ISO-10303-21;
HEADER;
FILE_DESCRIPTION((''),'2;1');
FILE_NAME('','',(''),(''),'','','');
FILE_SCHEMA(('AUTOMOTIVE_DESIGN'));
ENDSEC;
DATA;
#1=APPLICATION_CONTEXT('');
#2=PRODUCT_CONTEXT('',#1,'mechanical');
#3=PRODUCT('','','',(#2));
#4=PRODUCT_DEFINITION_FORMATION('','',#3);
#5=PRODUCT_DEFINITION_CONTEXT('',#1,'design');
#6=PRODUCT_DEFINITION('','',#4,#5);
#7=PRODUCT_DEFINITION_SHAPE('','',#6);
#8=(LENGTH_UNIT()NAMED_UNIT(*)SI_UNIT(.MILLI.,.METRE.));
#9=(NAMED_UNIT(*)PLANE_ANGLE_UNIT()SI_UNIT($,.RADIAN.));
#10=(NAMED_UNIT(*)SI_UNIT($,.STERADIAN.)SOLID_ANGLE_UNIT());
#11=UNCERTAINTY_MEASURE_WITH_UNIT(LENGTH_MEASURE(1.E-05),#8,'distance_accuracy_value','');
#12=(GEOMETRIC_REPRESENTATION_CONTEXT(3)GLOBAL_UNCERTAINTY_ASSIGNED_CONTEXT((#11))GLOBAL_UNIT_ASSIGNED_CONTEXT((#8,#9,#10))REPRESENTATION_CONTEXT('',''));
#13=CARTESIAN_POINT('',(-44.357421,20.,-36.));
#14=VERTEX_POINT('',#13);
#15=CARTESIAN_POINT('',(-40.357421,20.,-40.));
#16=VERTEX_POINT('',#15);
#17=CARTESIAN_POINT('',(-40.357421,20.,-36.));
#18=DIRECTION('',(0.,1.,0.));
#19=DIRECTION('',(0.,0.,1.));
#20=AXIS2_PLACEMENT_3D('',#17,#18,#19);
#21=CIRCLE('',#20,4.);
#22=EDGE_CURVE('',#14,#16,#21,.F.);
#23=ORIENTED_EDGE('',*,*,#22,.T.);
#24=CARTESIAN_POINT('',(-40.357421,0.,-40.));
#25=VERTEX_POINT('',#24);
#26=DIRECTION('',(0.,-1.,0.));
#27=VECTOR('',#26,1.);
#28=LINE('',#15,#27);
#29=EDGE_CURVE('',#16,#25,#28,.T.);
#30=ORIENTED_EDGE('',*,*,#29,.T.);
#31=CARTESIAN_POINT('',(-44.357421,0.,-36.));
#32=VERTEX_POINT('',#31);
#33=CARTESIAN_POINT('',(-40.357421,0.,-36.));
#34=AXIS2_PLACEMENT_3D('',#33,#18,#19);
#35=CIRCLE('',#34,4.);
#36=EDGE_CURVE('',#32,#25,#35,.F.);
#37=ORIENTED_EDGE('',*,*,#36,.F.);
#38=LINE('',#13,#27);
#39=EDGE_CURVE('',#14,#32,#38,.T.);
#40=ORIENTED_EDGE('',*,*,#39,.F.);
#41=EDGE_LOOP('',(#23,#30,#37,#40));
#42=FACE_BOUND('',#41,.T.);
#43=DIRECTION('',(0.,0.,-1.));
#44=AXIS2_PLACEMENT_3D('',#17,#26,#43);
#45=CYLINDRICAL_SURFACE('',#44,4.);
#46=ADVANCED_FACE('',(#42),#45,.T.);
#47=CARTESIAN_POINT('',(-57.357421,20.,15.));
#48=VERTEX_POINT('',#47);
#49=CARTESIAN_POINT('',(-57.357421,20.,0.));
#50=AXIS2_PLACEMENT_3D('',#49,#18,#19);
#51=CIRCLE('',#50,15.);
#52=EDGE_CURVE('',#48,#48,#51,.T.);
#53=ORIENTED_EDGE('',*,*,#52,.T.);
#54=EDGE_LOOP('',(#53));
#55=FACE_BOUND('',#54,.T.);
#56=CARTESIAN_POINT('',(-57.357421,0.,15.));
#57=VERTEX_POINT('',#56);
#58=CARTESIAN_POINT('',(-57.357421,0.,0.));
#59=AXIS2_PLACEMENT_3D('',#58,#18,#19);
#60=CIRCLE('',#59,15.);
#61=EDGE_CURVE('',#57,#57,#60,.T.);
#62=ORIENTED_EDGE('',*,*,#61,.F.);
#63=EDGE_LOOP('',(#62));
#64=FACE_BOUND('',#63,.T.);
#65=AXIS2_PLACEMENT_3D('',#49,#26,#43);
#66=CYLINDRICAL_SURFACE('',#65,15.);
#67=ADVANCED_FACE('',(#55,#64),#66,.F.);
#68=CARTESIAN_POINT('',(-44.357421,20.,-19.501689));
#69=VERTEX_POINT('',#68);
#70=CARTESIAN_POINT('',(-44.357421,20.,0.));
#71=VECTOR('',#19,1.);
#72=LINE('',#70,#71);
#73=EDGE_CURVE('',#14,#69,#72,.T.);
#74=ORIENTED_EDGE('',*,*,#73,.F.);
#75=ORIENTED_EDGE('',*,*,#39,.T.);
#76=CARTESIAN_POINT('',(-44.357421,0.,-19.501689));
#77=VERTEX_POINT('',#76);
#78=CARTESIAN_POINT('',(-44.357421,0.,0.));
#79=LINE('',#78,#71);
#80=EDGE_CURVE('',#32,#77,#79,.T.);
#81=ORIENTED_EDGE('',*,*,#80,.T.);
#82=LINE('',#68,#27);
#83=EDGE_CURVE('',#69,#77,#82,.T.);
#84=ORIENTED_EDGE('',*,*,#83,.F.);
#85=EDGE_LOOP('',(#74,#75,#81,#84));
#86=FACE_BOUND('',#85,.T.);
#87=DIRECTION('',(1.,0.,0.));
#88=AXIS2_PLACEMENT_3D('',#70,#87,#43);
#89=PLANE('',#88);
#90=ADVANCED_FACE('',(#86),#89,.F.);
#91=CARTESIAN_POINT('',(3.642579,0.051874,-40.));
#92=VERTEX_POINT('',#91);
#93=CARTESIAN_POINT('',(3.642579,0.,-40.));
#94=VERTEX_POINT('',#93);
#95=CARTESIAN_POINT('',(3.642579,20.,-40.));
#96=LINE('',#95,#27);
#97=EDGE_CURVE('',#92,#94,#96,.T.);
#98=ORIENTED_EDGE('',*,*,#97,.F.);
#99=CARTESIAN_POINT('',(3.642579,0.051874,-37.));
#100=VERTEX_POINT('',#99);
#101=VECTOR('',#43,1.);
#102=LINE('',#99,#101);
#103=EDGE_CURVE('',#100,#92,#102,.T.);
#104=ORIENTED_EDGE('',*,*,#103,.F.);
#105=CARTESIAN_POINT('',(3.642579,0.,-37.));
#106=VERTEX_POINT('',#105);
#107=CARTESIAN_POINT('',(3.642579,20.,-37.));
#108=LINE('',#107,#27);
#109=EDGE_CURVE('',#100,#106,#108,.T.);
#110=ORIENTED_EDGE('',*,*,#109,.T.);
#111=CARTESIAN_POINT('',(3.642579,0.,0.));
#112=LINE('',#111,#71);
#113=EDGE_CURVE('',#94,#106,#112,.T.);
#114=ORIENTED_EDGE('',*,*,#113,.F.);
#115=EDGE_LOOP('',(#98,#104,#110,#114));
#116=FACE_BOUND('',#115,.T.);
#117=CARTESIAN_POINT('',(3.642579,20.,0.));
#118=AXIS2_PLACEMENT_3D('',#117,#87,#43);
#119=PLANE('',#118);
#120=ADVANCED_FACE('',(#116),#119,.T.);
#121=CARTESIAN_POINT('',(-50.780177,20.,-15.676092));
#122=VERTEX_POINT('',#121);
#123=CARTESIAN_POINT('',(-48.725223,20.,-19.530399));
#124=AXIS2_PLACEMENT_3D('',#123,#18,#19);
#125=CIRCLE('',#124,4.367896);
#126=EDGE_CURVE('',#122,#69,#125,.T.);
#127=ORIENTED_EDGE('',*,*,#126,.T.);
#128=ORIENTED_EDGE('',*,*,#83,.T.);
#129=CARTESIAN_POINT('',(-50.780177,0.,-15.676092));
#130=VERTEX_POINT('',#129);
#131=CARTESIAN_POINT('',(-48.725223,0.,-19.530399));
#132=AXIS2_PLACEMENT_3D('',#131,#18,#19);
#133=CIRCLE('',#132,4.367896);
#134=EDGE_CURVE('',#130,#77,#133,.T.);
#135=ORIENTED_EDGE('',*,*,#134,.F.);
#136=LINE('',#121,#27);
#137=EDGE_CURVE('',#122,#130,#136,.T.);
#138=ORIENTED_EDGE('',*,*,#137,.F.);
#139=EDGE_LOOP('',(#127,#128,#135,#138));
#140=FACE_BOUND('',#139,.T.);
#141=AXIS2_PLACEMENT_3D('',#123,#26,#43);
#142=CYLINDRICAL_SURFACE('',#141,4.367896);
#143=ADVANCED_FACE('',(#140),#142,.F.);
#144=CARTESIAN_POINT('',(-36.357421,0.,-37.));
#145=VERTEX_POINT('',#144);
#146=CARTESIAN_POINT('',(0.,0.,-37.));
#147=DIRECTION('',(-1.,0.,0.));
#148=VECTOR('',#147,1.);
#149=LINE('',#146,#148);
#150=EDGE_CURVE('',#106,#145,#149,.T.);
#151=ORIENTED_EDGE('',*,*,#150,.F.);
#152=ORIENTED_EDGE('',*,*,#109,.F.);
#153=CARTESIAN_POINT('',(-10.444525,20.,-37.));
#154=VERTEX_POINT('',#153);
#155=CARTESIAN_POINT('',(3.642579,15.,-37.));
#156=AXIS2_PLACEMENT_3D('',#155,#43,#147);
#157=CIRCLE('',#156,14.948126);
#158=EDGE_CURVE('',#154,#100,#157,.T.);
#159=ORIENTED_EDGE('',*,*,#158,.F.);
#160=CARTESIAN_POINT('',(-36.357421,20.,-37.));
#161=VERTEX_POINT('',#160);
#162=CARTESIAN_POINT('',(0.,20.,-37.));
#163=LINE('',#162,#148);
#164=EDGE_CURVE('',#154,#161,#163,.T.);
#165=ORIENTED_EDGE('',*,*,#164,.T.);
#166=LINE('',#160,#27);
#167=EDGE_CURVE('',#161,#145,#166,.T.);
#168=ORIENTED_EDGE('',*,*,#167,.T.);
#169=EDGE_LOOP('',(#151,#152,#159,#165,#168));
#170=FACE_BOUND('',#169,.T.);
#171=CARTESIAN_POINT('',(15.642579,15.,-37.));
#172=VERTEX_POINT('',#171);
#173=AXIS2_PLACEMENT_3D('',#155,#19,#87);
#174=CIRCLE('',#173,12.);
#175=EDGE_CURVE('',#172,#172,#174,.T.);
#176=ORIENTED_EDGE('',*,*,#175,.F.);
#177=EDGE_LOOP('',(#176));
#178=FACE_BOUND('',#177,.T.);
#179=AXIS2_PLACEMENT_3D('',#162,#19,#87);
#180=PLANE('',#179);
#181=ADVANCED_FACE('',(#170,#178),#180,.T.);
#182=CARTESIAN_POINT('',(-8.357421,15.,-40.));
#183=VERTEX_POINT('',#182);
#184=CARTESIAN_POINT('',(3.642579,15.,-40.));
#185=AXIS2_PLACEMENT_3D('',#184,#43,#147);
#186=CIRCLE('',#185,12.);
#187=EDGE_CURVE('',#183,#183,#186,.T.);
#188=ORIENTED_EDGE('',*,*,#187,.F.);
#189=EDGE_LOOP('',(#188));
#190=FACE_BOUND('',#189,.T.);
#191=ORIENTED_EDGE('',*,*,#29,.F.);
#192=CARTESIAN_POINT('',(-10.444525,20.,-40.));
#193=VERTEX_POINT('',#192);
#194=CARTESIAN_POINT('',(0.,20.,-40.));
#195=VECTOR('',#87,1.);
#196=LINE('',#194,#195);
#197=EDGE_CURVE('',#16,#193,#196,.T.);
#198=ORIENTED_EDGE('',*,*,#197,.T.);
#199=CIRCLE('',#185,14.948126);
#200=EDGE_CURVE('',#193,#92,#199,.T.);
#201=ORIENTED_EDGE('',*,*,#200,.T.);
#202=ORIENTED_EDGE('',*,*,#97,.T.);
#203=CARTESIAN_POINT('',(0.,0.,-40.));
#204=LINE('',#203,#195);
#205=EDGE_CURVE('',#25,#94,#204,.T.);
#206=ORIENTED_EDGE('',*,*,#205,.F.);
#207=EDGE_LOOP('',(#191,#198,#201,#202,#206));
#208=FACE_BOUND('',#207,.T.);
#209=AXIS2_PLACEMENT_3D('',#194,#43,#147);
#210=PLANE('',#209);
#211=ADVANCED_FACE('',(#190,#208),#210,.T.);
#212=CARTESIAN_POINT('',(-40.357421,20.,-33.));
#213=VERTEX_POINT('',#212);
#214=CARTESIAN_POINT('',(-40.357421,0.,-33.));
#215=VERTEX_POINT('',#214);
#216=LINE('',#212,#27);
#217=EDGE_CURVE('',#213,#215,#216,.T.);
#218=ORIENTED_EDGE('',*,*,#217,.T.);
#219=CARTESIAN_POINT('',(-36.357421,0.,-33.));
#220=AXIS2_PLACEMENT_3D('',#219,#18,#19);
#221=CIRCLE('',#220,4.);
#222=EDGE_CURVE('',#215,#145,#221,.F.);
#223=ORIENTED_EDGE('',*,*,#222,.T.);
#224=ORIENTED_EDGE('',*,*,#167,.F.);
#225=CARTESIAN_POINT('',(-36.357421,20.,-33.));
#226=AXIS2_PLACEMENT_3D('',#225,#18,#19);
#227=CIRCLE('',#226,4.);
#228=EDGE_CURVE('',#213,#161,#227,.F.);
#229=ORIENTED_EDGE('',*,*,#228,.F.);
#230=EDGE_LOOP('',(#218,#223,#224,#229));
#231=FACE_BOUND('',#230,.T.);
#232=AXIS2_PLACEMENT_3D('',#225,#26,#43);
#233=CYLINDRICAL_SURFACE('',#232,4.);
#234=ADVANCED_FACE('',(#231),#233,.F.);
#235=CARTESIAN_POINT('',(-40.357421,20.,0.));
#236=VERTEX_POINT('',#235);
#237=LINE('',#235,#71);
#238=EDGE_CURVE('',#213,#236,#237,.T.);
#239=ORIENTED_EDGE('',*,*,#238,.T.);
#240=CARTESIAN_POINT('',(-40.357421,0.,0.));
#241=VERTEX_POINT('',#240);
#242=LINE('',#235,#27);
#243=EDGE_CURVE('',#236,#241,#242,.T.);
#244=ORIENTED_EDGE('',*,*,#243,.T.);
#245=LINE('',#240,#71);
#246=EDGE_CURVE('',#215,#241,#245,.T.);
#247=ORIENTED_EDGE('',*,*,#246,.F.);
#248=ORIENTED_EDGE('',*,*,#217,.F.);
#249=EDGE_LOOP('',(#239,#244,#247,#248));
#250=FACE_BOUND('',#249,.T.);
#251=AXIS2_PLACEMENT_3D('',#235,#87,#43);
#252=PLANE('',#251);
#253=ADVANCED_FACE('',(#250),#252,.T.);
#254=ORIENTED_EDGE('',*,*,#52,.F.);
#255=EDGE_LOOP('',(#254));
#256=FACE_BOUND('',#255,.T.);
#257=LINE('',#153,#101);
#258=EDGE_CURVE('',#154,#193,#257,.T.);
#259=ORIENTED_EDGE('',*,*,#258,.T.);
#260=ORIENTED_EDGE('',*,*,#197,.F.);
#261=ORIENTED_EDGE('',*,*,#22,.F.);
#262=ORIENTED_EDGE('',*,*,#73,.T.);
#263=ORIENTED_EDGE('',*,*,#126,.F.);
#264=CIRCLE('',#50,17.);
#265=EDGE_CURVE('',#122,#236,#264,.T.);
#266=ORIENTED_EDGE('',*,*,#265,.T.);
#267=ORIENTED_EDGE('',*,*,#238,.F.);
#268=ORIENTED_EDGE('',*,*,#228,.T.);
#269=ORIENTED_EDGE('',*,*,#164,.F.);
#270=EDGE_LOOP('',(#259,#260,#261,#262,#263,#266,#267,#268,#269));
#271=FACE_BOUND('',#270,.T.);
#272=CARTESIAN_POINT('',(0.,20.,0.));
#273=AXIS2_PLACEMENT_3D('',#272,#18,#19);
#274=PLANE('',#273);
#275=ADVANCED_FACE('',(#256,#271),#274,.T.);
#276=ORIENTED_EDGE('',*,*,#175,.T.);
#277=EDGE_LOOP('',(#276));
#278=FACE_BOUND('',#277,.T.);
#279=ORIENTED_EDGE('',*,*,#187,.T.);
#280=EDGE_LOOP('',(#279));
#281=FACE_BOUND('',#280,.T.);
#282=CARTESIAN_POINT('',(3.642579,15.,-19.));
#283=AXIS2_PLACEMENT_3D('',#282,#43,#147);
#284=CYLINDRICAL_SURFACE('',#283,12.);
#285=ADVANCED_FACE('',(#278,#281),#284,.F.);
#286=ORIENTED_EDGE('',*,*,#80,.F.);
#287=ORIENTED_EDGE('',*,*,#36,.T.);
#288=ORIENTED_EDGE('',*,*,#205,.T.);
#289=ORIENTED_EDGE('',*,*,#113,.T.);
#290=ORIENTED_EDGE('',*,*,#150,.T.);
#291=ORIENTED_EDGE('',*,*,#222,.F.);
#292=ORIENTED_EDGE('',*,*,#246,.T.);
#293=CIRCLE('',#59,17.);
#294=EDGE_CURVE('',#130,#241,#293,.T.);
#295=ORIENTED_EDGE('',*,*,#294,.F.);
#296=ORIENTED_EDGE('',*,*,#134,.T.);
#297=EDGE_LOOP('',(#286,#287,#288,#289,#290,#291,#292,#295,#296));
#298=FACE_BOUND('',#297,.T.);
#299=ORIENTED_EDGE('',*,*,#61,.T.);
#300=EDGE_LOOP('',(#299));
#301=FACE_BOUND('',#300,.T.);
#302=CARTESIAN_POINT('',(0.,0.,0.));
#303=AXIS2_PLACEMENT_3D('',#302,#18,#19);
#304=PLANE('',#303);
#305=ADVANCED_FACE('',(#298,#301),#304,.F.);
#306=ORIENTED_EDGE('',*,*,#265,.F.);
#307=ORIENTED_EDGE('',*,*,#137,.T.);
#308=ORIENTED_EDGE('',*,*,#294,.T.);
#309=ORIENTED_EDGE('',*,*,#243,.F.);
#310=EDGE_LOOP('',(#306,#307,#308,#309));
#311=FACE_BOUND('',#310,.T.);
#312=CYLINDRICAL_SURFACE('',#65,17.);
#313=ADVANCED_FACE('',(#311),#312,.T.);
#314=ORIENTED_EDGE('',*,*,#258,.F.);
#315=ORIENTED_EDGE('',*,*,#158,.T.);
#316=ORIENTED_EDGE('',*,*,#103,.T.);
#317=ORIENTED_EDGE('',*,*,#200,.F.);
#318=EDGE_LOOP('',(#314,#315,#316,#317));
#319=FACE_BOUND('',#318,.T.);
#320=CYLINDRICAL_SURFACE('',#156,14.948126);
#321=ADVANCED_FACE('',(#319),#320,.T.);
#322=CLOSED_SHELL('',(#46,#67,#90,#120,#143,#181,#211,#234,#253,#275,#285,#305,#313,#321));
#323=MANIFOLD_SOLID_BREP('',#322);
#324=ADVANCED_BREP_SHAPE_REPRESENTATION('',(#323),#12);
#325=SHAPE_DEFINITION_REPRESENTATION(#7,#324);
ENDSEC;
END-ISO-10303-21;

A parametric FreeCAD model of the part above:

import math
import FreeCAD as App
import Part
import Sketcher
Q = App.Units.Quantity

doc = App.newDocument("Part")
body = doc.addObject("PartDesign::Body", "Body")

sketch1 = body.newObject("Sketcher::SketchObject", "Sketch")
sketch1.AttachmentSupport = (doc.getObject("XZ_Plane"), [""])
sketch1.MapMode = "FlatFace"
sketch1.addGeometry(Part.ArcOfCircle(Part.Circle(App.Vector(-57.4, 0, 0), App.Vector(0, 0, 1), 17), math.radians(0), math.radians(293)), False)
sketch1.addGeometry(Part.LineSegment(App.Vector(-40.4, 0, 0), App.Vector(-40.4, -33, 0)), False)
sketch1.addGeometry(Part.ArcOfCircle(Part.Circle(App.Vector(-36.4, -33, 0), App.Vector(0, 0, 1), 4), math.radians(180), math.radians(270)), False)
sketch1.addGeometry(Part.LineSegment(App.Vector(-36.4, -37, 0), App.Vector(3.6, -37, 0)), False)
sketch1.addGeometry(Part.LineSegment(App.Vector(3.6, -37, 0), App.Vector(3.6, -40, 0)), False)
sketch1.addGeometry(Part.LineSegment(App.Vector(3.6, -40, 0), App.Vector(-40.4, -40, 0)), False)
sketch1.addGeometry(Part.ArcOfCircle(Part.Circle(App.Vector(-40.4, -36, 0), App.Vector(0, 0, 1), 4), math.radians(180), math.radians(270)), False)
sketch1.addGeometry(Part.LineSegment(App.Vector(-44.4, -36, 0), App.Vector(-44.4, -19.5, 0)), False)
sketch1.addGeometry(Part.ArcOfCircle(Part.Circle(App.Vector(-48.7, -19.5, 0), App.Vector(0, 0, 1), 4.4), math.radians(0), math.radians(110)), False)
sketch1.addGeometry(Part.ArcOfCircle(Part.Circle(App.Vector(-48.7, -19.5, 0), App.Vector(0, 0, 1), 4.4), math.radians(109.63), math.radians(118.06)), False)
sketch1.addGeometry(Part.Circle(App.Vector(-57.4, 0, 0), App.Vector(0, 0, 1), 15), False)
sketch1.addConstraint(Sketcher.Constraint("Tangent", 0, 1, 1, 1))
sketch1.addConstraint(Sketcher.Constraint("Tangent", 1, 2, 2, 1))
sketch1.addConstraint(Sketcher.Constraint("Tangent", 2, 2, 3, 1))
sketch1.addConstraint(Sketcher.Constraint("Coincident", 3, 2, 4, 1))
sketch1.addConstraint(Sketcher.Constraint("Coincident", 4, 2, 5, 1))
sketch1.addConstraint(Sketcher.Constraint("Tangent", 5, 2, 6, 2))
sketch1.addConstraint(Sketcher.Constraint("Tangent", 6, 1, 7, 1))
sketch1.addConstraint(Sketcher.Constraint("Coincident", 7, 2, 8, 1))
sketch1.addConstraint(Sketcher.Constraint("Tangent", 8, 2, 9, 1))
sketch1.addConstraint(Sketcher.Constraint("Coincident", 9, 2, 0, 2))
sketch1.addConstraint(Sketcher.Constraint("Vertical", 1))
sketch1.addConstraint(Sketcher.Constraint("Horizontal", 3))
sketch1.addConstraint(Sketcher.Constraint("Vertical", 4))
sketch1.addConstraint(Sketcher.Constraint("Horizontal", 5))
sketch1.addConstraint(Sketcher.Constraint("Vertical", 7))
sketch1.addConstraint(Sketcher.Constraint("Coincident", 10, 3, 0, 3))
sketch1.addConstraint(Sketcher.Constraint("Equal", 2, 6))
sketch1.addConstraint(Sketcher.Constraint("Equal", 8, 9))
sketch1.addConstraint(Sketcher.Constraint("PointOnObject", 0, 3, -1))
sketch1.addConstraint(Sketcher.Constraint("Vertical", 6, 3, 0, 1))
sketch1.addConstraint(Sketcher.Constraint("Diameter", 10, Q("30 mm")))
sketch1.addConstraint(Sketcher.Constraint("Radius", 0, Q("17 mm")))
sketch1.addConstraint(Sketcher.Constraint("Radius", 2, Q("4 mm")))
sketch1.addConstraint(Sketcher.Constraint("DistanceX", 3, 1, 3, 2, Q("40 mm")))
sketch1.addConstraint(Sketcher.Constraint("DistanceY", 1, 2, 1, 1, Q("33 mm")))
sketch1.addConstraint(Sketcher.Constraint("DistanceY", 4, 2, 4, 1, Q("3 mm")))
sketch1.addConstraint(Sketcher.Constraint("Radius", 8, Q("4.367896 mm")))
sketch1.addConstraint(Sketcher.Constraint("DistanceY", 7, 1, 7, 2, Q("16.498311 mm")))
sketch1.addConstraint(Sketcher.Constraint("DistanceY", 8, 3, -1, 1, Q("19.530399 mm")))
sketch1.addConstraint(Sketcher.Constraint("DistanceX", 0, 3, -1, 1, Q("57.357421 mm")))
sketch1.addConstraint(Sketcher.Constraint("DistanceX", 8, 2, -1, 1, Q("50.192239 mm")))
pad1 = body.newObject("PartDesign::Pad", "Pad")
pad1.Profile = sketch1
pad1.Length = 20
pad1.Reversed = True

sketch2 = body.newObject("Sketcher::SketchObject", "Sketch001")
sketch2.AttachmentSupport = (doc.getObject("XY_Plane"), [""])
sketch2.MapMode = "FlatFace"
sketch2.AttachmentOffset = App.Placement(App.Vector(0, 0, -40), App.Rotation())
sketch2.addGeometry(Part.ArcOfCircle(Part.Circle(App.Vector(4, 15, 0), App.Vector(0, 0, 1), 12), math.radians(-180), math.radians(-90)), False)
sketch2.addGeometry(Part.ArcOfCircle(Part.Circle(App.Vector(4, 15, 0), App.Vector(0, 0, 1), 12), math.radians(155), math.radians(180)), False)
sketch2.addGeometry(Part.ArcOfCircle(Part.Circle(App.Vector(4, 15, 0), App.Vector(0, 0, 1), 12), math.radians(-90), math.radians(155)), False)
sketch2.addConstraint(Sketcher.Constraint("Tangent", 0, 1, 1, 2))
sketch2.addConstraint(Sketcher.Constraint("Tangent", 1, 1, 2, 2))
sketch2.addConstraint(Sketcher.Constraint("Tangent", 2, 1, 0, 2))
sketch2.addConstraint(Sketcher.Constraint("Horizontal", 2, 3, 0, 1))
sketch2.addConstraint(Sketcher.Constraint("Vertical", 1, 3, 2, 1))
sketch2.addConstraint(Sketcher.Constraint("Radius", 0, Q("12 mm")))
sketch2.addConstraint(Sketcher.Constraint("DistanceY", -1, 1, 0, 3, Q("15 mm")))
sketch2.addConstraint(Sketcher.Constraint("DistanceY", -1, 1, 1, 1, Q("20 mm")))
sketch2.addConstraint(Sketcher.Constraint("DistanceX", -1, 1, 0, 3, Q("3.642579 mm")))
pocket1 = body.newObject("PartDesign::Pocket", "Pocket")
pocket1.Profile = sketch2
pocket1.Length = 21
pocket1.Reversed = True

sketch3 = body.newObject("Sketcher::SketchObject", "Sketch002")
sketch3.AttachmentSupport = (doc.getObject("XY_Plane"), [""])
sketch3.MapMode = "FlatFace"
sketch3.AttachmentOffset = App.Placement(App.Vector(0, 0, -40), App.Rotation())
sketch3.addGeometry(Part.LineSegment(App.Vector(3.6, 0.1, 0), App.Vector(3.6, 3, 0)), False)
sketch3.addGeometry(Part.ArcOfCircle(Part.Circle(App.Vector(3.6, 15, 0), App.Vector(0, 0, 1), 12), math.radians(-90), math.radians(155)), False)
sketch3.addGeometry(Part.LineSegment(App.Vector(-7.3, 20, 0), App.Vector(-10.4, 20, 0)), False)
sketch3.addGeometry(Part.ArcOfCircle(Part.Circle(App.Vector(3.6, 15, 0), App.Vector(0, 0, 1), 14.9), math.radians(-90), math.radians(160)), False)
sketch3.addConstraint(Sketcher.Constraint("Coincident", 0, 2, 1, 1))
sketch3.addConstraint(Sketcher.Constraint("Coincident", 1, 2, 2, 1))
sketch3.addConstraint(Sketcher.Constraint("Coincident", 2, 2, 3, 2))
sketch3.addConstraint(Sketcher.Constraint("Coincident", 3, 1, 0, 1))
sketch3.addConstraint(Sketcher.Constraint("Vertical", 0))
sketch3.addConstraint(Sketcher.Constraint("Horizontal", 2))
sketch3.addConstraint(Sketcher.Constraint("Coincident", 3, 3, 1, 3))
sketch3.addConstraint(Sketcher.Constraint("Vertical", 3, 3, 0, 2))
sketch3.addConstraint(Sketcher.Constraint("Radius", 1, Q("12 mm")))
sketch3.addConstraint(Sketcher.Constraint("DistanceY", -1, 1, 1, 3, Q("15 mm")))
sketch3.addConstraint(Sketcher.Constraint("DistanceY", -1, 1, 1, 2, Q("20 mm")))
sketch3.addConstraint(Sketcher.Constraint("Radius", 3, Q("14.948126 mm")))
sketch3.addConstraint(Sketcher.Constraint("DistanceX", -1, 1, 1, 3, Q("3.642579 mm")))
pad2 = body.newObject("PartDesign::Pad", "Pad001")
pad2.Profile = sketch3
pad2.Length = 3

doc.recompute()
